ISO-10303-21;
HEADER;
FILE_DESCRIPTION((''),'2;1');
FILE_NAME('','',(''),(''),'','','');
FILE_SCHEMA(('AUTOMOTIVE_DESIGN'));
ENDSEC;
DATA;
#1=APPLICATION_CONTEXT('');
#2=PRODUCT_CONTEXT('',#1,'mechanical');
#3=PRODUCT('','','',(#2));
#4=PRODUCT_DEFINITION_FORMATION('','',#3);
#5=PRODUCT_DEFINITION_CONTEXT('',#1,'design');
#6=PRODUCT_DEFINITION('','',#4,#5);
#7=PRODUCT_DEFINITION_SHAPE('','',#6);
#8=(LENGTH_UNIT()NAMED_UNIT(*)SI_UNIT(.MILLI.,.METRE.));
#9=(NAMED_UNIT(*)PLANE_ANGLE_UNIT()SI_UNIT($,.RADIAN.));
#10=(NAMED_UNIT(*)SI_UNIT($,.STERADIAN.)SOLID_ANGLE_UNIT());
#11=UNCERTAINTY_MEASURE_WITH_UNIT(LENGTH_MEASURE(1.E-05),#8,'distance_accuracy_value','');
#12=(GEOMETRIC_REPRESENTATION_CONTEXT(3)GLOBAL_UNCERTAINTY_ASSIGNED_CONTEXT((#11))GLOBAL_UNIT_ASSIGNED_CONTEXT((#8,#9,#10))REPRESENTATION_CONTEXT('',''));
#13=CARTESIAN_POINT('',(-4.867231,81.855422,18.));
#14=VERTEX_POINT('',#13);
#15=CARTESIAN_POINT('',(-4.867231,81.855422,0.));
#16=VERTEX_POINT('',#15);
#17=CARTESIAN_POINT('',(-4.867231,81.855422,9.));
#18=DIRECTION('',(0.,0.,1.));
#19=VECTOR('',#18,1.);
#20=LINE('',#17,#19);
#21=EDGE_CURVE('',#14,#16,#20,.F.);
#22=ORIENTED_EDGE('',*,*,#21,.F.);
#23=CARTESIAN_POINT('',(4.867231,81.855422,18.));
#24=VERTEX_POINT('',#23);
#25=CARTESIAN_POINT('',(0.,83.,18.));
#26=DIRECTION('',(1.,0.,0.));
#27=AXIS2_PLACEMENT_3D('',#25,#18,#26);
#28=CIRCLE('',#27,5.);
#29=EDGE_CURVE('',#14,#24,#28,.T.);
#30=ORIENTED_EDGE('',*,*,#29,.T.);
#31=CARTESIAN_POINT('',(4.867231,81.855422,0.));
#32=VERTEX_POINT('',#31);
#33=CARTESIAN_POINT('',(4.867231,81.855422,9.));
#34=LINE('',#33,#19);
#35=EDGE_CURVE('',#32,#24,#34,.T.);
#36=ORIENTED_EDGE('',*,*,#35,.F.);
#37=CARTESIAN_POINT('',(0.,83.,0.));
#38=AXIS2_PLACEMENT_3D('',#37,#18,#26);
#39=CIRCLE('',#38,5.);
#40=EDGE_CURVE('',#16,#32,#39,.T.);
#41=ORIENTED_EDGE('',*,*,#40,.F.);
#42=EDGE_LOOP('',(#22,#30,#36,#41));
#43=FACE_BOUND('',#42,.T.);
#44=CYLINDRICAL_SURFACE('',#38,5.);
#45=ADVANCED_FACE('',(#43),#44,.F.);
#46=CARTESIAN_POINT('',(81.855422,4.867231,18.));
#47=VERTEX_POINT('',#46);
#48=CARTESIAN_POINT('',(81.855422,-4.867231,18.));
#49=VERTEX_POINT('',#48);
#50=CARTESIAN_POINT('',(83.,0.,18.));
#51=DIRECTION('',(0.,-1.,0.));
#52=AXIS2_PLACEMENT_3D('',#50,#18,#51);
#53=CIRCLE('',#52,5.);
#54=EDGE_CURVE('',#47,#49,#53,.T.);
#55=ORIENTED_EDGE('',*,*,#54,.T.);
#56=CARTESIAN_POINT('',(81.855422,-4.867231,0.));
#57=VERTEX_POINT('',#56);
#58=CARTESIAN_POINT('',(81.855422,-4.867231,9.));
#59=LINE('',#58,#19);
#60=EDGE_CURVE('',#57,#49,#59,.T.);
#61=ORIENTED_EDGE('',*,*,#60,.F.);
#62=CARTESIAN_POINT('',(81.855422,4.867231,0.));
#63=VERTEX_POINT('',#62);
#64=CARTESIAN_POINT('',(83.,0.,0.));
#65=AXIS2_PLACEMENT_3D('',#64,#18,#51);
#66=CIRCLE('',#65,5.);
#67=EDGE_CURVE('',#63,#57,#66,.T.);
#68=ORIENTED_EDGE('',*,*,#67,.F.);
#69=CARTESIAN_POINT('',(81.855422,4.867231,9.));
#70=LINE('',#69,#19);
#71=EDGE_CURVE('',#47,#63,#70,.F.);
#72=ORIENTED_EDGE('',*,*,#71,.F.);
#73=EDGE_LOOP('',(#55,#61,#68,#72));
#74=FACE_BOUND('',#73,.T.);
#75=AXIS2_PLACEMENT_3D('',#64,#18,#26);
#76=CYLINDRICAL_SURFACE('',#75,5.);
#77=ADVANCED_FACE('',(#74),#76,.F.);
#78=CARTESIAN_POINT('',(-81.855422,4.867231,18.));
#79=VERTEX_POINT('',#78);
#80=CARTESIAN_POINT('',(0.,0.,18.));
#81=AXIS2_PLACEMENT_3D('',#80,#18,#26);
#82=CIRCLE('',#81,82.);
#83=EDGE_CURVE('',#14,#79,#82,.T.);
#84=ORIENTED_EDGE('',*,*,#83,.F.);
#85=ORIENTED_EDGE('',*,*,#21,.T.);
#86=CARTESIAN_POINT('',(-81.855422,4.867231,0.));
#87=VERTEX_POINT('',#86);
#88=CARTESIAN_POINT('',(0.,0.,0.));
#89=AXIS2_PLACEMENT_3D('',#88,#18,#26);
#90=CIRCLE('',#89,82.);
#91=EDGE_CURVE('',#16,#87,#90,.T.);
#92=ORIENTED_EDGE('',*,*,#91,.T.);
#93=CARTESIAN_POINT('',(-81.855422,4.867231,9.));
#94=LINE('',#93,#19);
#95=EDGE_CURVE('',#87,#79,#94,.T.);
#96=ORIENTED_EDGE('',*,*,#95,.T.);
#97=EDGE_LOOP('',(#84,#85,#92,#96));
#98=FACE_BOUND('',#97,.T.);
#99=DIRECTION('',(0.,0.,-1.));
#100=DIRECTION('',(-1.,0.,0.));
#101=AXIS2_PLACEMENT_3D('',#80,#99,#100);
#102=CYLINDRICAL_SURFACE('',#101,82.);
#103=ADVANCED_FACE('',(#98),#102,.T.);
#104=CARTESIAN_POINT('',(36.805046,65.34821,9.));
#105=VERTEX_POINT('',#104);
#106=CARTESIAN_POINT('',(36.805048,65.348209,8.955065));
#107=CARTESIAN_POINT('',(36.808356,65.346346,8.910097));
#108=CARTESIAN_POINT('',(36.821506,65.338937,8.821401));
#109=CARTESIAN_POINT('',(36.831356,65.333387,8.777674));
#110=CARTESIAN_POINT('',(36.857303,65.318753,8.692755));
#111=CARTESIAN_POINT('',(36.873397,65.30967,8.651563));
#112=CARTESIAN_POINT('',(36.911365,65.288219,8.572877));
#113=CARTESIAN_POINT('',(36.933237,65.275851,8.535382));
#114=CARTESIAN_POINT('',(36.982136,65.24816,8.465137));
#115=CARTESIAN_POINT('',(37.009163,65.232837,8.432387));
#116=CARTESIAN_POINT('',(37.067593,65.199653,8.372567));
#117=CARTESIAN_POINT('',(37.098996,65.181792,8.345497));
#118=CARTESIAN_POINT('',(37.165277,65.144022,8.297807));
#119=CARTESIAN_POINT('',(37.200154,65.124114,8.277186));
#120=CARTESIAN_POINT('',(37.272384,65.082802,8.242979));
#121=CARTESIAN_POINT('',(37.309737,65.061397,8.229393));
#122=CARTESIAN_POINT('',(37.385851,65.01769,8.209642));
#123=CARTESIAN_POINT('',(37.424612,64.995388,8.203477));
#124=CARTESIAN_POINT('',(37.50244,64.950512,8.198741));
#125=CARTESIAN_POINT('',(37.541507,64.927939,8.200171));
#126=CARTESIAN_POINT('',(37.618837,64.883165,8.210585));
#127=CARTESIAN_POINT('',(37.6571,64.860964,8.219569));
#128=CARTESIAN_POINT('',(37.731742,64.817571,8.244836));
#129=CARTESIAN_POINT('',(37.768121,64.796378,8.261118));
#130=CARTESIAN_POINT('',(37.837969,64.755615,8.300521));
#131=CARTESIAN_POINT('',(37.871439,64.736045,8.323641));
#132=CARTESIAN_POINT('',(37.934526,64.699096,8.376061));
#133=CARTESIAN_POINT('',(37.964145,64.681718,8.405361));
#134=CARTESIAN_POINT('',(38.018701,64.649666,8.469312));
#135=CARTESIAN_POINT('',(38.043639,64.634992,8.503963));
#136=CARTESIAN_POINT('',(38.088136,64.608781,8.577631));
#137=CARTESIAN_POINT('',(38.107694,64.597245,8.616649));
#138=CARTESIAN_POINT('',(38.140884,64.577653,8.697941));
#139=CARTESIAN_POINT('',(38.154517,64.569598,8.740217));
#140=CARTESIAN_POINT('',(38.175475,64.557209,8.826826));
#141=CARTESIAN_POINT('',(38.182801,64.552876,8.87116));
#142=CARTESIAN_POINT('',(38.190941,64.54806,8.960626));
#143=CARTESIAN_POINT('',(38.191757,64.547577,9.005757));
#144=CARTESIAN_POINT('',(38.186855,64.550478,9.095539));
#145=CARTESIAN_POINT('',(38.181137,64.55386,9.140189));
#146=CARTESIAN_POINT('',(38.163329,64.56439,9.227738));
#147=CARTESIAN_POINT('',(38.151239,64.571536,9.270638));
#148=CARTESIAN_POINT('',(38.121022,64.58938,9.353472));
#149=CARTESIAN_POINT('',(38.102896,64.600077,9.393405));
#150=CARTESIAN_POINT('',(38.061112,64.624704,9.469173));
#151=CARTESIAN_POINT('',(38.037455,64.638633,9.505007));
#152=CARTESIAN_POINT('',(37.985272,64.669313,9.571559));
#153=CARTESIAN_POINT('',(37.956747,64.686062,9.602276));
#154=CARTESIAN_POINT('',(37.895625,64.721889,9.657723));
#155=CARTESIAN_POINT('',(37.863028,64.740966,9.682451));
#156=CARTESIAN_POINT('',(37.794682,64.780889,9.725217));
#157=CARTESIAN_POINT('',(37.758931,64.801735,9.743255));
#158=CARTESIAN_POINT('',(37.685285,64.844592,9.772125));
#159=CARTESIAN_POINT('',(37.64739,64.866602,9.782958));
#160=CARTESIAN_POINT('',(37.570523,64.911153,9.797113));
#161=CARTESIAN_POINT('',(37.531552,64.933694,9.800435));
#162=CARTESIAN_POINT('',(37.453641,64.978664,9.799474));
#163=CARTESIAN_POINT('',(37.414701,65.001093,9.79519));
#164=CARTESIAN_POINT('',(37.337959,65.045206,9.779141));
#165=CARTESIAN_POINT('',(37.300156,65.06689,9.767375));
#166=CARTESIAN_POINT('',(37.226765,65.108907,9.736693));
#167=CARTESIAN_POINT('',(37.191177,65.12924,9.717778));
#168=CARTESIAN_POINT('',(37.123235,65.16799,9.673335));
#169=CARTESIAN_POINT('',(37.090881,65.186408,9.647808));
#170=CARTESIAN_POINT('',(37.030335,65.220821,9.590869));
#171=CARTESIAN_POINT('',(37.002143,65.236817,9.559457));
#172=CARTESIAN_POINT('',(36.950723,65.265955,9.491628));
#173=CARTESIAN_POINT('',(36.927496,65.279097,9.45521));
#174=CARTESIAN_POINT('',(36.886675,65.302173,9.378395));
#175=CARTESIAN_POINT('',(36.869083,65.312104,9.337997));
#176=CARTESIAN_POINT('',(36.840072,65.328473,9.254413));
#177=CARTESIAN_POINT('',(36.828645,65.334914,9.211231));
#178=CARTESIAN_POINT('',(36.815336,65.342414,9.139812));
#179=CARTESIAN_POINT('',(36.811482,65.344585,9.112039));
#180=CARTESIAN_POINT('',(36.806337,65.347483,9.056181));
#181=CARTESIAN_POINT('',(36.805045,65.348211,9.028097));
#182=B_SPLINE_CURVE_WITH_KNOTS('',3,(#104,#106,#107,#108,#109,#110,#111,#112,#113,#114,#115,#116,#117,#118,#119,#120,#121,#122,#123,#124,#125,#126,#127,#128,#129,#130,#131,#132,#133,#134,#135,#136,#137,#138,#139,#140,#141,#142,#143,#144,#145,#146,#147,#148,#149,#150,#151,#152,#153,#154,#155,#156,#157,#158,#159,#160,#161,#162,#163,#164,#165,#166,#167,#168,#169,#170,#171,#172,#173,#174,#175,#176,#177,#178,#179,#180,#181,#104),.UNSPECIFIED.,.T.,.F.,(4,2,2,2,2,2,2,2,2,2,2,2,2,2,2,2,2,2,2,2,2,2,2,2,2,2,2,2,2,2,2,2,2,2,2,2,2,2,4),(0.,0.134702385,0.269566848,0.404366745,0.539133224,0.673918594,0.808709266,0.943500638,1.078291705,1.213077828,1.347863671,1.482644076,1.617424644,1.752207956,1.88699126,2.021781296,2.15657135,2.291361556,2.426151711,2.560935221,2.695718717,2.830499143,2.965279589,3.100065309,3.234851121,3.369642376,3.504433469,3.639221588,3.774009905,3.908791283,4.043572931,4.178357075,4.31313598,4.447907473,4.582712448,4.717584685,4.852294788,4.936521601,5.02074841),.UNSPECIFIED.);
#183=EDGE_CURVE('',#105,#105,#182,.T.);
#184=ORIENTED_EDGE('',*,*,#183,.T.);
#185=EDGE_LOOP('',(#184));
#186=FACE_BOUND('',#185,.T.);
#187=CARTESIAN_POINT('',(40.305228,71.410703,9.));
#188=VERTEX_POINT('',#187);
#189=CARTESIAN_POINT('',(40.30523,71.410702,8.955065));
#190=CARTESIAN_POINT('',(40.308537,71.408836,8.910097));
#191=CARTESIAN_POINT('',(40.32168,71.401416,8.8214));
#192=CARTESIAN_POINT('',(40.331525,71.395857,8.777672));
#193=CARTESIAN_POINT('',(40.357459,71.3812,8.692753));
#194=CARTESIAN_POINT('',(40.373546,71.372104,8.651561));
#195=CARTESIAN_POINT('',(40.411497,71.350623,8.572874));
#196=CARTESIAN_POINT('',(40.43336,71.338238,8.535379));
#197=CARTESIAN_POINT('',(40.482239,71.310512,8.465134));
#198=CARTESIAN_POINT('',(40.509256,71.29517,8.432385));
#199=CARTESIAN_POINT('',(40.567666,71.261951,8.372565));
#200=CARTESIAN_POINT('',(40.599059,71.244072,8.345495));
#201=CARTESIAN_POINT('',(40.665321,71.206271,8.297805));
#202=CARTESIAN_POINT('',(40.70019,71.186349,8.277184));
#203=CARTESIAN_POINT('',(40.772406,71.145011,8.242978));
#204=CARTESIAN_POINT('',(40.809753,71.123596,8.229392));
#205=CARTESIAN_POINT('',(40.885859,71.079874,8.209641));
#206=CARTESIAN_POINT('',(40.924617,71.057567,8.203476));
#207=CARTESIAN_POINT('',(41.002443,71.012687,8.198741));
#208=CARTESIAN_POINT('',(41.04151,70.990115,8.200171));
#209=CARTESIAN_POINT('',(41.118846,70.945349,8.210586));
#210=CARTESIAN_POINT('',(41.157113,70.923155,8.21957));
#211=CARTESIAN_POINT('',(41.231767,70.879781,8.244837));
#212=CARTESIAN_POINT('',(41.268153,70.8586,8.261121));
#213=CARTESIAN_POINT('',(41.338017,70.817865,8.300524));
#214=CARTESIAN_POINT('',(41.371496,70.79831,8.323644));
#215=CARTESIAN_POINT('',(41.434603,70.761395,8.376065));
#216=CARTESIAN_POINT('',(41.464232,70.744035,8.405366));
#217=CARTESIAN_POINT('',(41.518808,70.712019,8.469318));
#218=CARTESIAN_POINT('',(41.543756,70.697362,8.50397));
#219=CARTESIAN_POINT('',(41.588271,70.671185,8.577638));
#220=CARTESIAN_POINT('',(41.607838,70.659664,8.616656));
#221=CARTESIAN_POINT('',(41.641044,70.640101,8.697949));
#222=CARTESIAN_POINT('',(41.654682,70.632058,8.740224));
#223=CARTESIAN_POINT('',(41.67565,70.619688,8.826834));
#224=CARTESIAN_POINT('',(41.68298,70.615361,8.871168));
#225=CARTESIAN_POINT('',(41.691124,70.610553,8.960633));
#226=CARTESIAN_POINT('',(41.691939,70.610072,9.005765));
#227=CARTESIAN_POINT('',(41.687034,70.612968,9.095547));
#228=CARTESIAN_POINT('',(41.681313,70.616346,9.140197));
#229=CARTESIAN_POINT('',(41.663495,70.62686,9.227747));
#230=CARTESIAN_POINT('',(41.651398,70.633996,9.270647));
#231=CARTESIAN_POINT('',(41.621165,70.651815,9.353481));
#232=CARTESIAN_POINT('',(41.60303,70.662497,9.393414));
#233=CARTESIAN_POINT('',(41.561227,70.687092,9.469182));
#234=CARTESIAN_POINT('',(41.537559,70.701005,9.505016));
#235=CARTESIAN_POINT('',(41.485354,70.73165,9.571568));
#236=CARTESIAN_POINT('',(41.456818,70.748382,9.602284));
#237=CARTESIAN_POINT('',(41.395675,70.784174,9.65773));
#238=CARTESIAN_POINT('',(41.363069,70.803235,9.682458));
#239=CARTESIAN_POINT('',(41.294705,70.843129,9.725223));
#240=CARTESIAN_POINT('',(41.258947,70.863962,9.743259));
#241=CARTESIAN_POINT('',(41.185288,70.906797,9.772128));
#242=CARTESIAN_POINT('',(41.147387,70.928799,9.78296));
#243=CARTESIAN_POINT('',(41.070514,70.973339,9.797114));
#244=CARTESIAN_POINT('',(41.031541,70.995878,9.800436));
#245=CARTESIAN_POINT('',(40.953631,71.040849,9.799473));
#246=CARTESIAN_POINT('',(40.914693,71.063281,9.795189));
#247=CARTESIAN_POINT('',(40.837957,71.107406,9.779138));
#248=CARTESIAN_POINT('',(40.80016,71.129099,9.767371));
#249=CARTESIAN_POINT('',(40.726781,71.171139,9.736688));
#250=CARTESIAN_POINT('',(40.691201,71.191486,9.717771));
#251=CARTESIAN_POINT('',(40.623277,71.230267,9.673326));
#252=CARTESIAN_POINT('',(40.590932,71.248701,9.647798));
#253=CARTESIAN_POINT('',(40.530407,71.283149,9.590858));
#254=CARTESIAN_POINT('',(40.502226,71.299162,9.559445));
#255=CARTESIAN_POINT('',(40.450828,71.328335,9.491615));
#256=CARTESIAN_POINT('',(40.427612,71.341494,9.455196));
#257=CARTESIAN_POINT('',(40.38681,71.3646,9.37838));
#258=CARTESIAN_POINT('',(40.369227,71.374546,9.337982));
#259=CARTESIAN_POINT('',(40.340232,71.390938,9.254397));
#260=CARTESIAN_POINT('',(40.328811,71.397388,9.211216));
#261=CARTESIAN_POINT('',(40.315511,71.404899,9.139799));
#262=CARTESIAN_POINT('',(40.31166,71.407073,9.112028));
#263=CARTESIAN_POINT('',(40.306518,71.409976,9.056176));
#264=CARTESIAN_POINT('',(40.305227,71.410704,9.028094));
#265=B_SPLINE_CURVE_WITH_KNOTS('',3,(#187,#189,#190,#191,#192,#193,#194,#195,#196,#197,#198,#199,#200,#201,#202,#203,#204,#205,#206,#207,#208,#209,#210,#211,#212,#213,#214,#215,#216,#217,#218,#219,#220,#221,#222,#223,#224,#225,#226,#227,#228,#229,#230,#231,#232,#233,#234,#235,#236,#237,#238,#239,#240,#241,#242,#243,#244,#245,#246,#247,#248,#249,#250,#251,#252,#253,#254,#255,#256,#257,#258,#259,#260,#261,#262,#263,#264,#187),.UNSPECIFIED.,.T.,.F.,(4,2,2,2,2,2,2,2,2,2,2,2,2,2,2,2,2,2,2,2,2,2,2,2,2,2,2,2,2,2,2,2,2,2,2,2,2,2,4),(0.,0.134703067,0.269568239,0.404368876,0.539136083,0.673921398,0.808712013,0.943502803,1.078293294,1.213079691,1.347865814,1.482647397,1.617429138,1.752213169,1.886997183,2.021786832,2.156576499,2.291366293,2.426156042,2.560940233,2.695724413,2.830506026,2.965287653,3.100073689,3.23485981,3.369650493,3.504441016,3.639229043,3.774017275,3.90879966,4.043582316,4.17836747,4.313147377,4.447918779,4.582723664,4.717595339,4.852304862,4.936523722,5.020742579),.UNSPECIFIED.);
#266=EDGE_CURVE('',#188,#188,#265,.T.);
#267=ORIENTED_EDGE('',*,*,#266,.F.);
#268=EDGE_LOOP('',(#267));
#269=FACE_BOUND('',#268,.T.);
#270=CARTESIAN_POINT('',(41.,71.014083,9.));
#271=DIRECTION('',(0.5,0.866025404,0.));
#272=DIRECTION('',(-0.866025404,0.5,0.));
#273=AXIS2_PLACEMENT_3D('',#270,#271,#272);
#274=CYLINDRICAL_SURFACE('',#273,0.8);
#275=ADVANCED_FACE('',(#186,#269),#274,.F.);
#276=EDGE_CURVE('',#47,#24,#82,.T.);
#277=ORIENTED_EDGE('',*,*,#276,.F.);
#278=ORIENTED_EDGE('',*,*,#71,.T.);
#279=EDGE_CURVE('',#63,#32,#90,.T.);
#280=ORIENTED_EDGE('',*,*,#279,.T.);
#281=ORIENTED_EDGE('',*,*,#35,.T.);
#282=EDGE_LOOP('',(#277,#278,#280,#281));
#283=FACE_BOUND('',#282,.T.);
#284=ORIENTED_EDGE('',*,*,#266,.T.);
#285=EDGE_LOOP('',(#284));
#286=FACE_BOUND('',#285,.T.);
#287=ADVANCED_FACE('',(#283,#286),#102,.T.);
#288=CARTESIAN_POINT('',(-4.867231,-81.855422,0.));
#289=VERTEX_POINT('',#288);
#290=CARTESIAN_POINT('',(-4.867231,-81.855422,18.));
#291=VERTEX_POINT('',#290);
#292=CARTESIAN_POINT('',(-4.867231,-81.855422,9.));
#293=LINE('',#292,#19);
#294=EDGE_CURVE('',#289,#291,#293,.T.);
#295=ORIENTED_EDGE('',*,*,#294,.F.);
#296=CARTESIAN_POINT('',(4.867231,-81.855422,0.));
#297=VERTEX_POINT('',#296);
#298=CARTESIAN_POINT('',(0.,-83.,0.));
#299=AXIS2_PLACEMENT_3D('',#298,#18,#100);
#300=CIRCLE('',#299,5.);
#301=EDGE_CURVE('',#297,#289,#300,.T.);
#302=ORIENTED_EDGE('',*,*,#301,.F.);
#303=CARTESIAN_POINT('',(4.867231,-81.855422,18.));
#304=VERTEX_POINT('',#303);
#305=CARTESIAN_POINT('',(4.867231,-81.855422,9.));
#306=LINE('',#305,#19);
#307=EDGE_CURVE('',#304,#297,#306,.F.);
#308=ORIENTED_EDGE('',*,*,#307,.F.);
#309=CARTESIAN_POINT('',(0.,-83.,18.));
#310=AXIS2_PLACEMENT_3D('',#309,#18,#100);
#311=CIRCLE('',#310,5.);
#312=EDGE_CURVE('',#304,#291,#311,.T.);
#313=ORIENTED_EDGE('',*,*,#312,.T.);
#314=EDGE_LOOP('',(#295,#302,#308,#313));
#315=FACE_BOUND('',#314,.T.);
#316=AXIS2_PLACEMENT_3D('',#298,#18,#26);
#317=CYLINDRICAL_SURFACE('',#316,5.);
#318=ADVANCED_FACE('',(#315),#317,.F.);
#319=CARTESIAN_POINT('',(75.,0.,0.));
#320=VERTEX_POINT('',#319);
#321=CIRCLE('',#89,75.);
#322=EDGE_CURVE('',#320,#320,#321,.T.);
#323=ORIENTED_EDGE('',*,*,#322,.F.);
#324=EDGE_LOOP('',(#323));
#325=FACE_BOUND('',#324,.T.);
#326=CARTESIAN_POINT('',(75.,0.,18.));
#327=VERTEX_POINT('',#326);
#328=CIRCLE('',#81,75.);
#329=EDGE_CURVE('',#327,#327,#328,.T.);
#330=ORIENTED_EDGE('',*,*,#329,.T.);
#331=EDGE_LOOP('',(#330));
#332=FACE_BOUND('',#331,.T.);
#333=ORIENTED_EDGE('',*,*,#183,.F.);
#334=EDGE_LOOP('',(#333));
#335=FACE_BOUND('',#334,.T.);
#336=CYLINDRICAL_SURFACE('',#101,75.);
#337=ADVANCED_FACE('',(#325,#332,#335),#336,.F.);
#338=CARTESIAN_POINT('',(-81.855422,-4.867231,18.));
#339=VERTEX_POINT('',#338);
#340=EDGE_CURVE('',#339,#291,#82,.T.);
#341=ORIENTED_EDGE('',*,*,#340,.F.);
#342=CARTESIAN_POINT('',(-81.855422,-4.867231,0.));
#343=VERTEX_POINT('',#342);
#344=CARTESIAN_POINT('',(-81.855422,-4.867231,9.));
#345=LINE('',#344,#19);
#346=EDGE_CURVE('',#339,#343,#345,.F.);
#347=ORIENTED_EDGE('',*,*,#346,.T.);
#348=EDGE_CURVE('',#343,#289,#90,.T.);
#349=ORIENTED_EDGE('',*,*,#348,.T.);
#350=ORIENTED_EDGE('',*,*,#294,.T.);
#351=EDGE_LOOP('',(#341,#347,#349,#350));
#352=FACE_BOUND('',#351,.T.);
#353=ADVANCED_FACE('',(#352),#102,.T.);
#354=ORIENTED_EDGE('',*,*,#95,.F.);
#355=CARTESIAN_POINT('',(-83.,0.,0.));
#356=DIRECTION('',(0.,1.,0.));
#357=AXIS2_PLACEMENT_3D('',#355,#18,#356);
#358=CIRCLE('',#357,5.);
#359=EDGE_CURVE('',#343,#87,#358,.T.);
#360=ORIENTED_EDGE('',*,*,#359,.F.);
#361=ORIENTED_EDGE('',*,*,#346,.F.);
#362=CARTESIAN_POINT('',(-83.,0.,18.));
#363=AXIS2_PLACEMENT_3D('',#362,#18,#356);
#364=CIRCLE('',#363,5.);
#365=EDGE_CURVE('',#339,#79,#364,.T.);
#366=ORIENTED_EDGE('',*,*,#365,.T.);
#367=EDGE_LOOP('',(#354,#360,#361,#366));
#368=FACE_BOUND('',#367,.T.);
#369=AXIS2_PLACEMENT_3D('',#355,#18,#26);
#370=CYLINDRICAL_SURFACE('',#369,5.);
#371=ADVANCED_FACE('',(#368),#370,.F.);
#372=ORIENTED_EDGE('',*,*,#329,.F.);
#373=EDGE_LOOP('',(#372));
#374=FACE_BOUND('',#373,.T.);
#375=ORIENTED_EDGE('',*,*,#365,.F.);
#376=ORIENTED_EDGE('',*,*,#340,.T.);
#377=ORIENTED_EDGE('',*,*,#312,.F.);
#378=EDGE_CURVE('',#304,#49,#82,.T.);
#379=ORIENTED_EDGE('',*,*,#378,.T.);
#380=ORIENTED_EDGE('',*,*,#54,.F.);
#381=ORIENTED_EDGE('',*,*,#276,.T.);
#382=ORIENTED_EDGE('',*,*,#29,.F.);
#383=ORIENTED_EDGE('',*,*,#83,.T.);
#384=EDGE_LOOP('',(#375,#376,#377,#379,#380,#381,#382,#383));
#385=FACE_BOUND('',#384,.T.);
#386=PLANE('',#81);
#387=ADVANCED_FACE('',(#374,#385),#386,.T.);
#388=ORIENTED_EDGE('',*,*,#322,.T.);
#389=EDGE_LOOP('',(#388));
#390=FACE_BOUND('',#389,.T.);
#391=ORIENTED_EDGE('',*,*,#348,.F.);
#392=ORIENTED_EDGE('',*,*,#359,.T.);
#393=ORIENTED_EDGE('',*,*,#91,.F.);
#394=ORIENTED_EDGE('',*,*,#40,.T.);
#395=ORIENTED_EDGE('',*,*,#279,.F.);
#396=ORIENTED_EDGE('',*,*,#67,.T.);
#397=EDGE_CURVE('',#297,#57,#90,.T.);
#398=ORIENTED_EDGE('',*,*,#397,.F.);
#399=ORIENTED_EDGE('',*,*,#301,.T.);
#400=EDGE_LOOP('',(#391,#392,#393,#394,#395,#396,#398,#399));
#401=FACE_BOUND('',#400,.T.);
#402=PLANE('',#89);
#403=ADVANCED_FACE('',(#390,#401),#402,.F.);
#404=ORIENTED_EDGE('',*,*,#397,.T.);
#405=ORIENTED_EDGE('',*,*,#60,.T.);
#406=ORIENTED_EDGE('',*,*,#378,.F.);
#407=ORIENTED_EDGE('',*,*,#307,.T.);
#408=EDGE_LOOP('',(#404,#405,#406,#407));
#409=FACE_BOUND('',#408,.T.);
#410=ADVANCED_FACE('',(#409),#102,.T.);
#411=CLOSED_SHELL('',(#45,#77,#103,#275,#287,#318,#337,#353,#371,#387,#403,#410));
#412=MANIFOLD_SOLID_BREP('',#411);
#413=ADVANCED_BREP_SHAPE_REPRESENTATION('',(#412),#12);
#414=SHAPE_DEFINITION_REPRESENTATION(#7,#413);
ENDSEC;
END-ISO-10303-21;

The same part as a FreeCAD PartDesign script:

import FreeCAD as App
import Part
import Sketcher

V = App.Vector
Q = App.Units.Quantity

doc = App.newDocument("Part")
params = doc.addObject("Spreadsheet::Sheet", "Params")
for row, (alias, value) in enumerate([
    ("sketch1_diameter", "164 mm"),
    ("sketch1_diameter2", "150 mm"),
    ("pad1_length", "18 mm"),
    ("sketch2_diameter", "10 mm"),
    ("sketch3_diameter", "1.6 mm"),
    ("hole_diameter", "1.6 mm"),
    ("hole_depth", "10 mm"),
], start=1):
    params.set(f"A{row}", alias)
    params.set(f"B{row}", "=" + value)
    params.setAlias(f"B{row}", alias)

body = doc.addObject("PartDesign::Body", "Body")

sketch1 = body.newObject("Sketcher::SketchObject", "Sketch")
sketch1.AttachmentSupport = (doc.getObject("XY_Plane"), [""])
sketch1.MapMode = "FlatFace"
sketch1.addGeometry(Part.Circle(V(0, 0, 0), V(0, 0, 1), 82), False)
sketch1.addGeometry(Part.Circle(V(0, 0, 0), V(0, 0, 1), 75), False)
sketch1.addConstraint(Sketcher.Constraint("Coincident", 0, 3, -1, 1))
sketch1.addConstraint(Sketcher.Constraint("Coincident", 1, 3, -1, 1))
sketch1.addConstraint(Sketcher.Constraint("Diameter", 0, Q("164 mm")))
sketch1.addConstraint(Sketcher.Constraint("Diameter", 1, Q("150 mm")))
sketch1.setExpression("Constraints[2]", "Params.sketch1_diameter")
sketch1.setExpression("Constraints[3]", "Params.sketch1_diameter2")
pad1 = body.newObject("PartDesign::Pad", "Pad")
pad1.Profile = sketch1
pad1.setExpression("Length", "Params.pad1_length")

sketch2 = body.newObject("Sketcher::SketchObject", "Sketch001")
sketch2.AttachmentSupport = (doc.getObject("XY_Plane"), [""])
sketch2.MapMode = "FlatFace"
sketch2.AttachmentOffset = App.Placement(V(0, 0, 18), App.Rotation())
sketch2.addGeometry(Part.Circle(V(0, 83, 0), V(0, 0, 1), 5), False)
sketch2.addConstraint(Sketcher.Constraint("PointOnObject", 0, 3, -2))
sketch2.addConstraint(Sketcher.Constraint("Diameter", 0, Q("10 mm")))
sketch2.addConstraint(Sketcher.Constraint("DistanceY", -1, 1, 0, 3, Q("83 mm")))
sketch2.setExpression("Constraints[1]", "Params.sketch2_diameter")
pocket1 = body.newObject("PartDesign::Pocket", "Pocket")
pocket1.Profile = sketch2
pocket1.Type = "ThroughAll"
doc.recompute()

polarpattern = body.newObject("PartDesign::PolarPattern", "PolarPattern")
polarpattern.Originals = [pocket1]
polarpattern.Axis = (doc.getObject("Z_Axis"), [""])
polarpattern.Angle = 360
polarpattern.Occurrences = 4
body.Tip = polarpattern

sketch3 = body.newObject("Sketcher::SketchObject", "Sketch002")
sketch3.Placement = App.Placement(V(41, 71.014083, 0), App.Rotation(V(0.866025404, -0.5, 0), V(0, 0, -1), V(0.5, 0.866025404, 0), "ZXY"))
sketch3.addGeometry(Part.Circle(V(0, -9, 0), V(0, 0, 1), 0.8), False)
sketch3.addConstraint(Sketcher.Constraint("PointOnObject", 0, 3, -2))
sketch3.addConstraint(Sketcher.Constraint("Diameter", 0, Q("1.6 mm")))
sketch3.addConstraint(Sketcher.Constraint("DistanceY", 0, 3, -1, 1, Q("9 mm")))
sketch3.setExpression("Constraints[1]", "Params.sketch3_diameter")
doc.recompute()
hole = body.newObject("PartDesign::Hole", "Hole")
hole.Profile = sketch3
hole.ThreadType = "None"
hole.setExpression("Diameter", "Params.hole_diameter")
hole.DepthType = "Dimension"
hole.setExpression("Depth", "Params.hole_depth")
hole.DrillPoint = "Angled"
hole.DrillPointAngle = 118

doc.recompute()
